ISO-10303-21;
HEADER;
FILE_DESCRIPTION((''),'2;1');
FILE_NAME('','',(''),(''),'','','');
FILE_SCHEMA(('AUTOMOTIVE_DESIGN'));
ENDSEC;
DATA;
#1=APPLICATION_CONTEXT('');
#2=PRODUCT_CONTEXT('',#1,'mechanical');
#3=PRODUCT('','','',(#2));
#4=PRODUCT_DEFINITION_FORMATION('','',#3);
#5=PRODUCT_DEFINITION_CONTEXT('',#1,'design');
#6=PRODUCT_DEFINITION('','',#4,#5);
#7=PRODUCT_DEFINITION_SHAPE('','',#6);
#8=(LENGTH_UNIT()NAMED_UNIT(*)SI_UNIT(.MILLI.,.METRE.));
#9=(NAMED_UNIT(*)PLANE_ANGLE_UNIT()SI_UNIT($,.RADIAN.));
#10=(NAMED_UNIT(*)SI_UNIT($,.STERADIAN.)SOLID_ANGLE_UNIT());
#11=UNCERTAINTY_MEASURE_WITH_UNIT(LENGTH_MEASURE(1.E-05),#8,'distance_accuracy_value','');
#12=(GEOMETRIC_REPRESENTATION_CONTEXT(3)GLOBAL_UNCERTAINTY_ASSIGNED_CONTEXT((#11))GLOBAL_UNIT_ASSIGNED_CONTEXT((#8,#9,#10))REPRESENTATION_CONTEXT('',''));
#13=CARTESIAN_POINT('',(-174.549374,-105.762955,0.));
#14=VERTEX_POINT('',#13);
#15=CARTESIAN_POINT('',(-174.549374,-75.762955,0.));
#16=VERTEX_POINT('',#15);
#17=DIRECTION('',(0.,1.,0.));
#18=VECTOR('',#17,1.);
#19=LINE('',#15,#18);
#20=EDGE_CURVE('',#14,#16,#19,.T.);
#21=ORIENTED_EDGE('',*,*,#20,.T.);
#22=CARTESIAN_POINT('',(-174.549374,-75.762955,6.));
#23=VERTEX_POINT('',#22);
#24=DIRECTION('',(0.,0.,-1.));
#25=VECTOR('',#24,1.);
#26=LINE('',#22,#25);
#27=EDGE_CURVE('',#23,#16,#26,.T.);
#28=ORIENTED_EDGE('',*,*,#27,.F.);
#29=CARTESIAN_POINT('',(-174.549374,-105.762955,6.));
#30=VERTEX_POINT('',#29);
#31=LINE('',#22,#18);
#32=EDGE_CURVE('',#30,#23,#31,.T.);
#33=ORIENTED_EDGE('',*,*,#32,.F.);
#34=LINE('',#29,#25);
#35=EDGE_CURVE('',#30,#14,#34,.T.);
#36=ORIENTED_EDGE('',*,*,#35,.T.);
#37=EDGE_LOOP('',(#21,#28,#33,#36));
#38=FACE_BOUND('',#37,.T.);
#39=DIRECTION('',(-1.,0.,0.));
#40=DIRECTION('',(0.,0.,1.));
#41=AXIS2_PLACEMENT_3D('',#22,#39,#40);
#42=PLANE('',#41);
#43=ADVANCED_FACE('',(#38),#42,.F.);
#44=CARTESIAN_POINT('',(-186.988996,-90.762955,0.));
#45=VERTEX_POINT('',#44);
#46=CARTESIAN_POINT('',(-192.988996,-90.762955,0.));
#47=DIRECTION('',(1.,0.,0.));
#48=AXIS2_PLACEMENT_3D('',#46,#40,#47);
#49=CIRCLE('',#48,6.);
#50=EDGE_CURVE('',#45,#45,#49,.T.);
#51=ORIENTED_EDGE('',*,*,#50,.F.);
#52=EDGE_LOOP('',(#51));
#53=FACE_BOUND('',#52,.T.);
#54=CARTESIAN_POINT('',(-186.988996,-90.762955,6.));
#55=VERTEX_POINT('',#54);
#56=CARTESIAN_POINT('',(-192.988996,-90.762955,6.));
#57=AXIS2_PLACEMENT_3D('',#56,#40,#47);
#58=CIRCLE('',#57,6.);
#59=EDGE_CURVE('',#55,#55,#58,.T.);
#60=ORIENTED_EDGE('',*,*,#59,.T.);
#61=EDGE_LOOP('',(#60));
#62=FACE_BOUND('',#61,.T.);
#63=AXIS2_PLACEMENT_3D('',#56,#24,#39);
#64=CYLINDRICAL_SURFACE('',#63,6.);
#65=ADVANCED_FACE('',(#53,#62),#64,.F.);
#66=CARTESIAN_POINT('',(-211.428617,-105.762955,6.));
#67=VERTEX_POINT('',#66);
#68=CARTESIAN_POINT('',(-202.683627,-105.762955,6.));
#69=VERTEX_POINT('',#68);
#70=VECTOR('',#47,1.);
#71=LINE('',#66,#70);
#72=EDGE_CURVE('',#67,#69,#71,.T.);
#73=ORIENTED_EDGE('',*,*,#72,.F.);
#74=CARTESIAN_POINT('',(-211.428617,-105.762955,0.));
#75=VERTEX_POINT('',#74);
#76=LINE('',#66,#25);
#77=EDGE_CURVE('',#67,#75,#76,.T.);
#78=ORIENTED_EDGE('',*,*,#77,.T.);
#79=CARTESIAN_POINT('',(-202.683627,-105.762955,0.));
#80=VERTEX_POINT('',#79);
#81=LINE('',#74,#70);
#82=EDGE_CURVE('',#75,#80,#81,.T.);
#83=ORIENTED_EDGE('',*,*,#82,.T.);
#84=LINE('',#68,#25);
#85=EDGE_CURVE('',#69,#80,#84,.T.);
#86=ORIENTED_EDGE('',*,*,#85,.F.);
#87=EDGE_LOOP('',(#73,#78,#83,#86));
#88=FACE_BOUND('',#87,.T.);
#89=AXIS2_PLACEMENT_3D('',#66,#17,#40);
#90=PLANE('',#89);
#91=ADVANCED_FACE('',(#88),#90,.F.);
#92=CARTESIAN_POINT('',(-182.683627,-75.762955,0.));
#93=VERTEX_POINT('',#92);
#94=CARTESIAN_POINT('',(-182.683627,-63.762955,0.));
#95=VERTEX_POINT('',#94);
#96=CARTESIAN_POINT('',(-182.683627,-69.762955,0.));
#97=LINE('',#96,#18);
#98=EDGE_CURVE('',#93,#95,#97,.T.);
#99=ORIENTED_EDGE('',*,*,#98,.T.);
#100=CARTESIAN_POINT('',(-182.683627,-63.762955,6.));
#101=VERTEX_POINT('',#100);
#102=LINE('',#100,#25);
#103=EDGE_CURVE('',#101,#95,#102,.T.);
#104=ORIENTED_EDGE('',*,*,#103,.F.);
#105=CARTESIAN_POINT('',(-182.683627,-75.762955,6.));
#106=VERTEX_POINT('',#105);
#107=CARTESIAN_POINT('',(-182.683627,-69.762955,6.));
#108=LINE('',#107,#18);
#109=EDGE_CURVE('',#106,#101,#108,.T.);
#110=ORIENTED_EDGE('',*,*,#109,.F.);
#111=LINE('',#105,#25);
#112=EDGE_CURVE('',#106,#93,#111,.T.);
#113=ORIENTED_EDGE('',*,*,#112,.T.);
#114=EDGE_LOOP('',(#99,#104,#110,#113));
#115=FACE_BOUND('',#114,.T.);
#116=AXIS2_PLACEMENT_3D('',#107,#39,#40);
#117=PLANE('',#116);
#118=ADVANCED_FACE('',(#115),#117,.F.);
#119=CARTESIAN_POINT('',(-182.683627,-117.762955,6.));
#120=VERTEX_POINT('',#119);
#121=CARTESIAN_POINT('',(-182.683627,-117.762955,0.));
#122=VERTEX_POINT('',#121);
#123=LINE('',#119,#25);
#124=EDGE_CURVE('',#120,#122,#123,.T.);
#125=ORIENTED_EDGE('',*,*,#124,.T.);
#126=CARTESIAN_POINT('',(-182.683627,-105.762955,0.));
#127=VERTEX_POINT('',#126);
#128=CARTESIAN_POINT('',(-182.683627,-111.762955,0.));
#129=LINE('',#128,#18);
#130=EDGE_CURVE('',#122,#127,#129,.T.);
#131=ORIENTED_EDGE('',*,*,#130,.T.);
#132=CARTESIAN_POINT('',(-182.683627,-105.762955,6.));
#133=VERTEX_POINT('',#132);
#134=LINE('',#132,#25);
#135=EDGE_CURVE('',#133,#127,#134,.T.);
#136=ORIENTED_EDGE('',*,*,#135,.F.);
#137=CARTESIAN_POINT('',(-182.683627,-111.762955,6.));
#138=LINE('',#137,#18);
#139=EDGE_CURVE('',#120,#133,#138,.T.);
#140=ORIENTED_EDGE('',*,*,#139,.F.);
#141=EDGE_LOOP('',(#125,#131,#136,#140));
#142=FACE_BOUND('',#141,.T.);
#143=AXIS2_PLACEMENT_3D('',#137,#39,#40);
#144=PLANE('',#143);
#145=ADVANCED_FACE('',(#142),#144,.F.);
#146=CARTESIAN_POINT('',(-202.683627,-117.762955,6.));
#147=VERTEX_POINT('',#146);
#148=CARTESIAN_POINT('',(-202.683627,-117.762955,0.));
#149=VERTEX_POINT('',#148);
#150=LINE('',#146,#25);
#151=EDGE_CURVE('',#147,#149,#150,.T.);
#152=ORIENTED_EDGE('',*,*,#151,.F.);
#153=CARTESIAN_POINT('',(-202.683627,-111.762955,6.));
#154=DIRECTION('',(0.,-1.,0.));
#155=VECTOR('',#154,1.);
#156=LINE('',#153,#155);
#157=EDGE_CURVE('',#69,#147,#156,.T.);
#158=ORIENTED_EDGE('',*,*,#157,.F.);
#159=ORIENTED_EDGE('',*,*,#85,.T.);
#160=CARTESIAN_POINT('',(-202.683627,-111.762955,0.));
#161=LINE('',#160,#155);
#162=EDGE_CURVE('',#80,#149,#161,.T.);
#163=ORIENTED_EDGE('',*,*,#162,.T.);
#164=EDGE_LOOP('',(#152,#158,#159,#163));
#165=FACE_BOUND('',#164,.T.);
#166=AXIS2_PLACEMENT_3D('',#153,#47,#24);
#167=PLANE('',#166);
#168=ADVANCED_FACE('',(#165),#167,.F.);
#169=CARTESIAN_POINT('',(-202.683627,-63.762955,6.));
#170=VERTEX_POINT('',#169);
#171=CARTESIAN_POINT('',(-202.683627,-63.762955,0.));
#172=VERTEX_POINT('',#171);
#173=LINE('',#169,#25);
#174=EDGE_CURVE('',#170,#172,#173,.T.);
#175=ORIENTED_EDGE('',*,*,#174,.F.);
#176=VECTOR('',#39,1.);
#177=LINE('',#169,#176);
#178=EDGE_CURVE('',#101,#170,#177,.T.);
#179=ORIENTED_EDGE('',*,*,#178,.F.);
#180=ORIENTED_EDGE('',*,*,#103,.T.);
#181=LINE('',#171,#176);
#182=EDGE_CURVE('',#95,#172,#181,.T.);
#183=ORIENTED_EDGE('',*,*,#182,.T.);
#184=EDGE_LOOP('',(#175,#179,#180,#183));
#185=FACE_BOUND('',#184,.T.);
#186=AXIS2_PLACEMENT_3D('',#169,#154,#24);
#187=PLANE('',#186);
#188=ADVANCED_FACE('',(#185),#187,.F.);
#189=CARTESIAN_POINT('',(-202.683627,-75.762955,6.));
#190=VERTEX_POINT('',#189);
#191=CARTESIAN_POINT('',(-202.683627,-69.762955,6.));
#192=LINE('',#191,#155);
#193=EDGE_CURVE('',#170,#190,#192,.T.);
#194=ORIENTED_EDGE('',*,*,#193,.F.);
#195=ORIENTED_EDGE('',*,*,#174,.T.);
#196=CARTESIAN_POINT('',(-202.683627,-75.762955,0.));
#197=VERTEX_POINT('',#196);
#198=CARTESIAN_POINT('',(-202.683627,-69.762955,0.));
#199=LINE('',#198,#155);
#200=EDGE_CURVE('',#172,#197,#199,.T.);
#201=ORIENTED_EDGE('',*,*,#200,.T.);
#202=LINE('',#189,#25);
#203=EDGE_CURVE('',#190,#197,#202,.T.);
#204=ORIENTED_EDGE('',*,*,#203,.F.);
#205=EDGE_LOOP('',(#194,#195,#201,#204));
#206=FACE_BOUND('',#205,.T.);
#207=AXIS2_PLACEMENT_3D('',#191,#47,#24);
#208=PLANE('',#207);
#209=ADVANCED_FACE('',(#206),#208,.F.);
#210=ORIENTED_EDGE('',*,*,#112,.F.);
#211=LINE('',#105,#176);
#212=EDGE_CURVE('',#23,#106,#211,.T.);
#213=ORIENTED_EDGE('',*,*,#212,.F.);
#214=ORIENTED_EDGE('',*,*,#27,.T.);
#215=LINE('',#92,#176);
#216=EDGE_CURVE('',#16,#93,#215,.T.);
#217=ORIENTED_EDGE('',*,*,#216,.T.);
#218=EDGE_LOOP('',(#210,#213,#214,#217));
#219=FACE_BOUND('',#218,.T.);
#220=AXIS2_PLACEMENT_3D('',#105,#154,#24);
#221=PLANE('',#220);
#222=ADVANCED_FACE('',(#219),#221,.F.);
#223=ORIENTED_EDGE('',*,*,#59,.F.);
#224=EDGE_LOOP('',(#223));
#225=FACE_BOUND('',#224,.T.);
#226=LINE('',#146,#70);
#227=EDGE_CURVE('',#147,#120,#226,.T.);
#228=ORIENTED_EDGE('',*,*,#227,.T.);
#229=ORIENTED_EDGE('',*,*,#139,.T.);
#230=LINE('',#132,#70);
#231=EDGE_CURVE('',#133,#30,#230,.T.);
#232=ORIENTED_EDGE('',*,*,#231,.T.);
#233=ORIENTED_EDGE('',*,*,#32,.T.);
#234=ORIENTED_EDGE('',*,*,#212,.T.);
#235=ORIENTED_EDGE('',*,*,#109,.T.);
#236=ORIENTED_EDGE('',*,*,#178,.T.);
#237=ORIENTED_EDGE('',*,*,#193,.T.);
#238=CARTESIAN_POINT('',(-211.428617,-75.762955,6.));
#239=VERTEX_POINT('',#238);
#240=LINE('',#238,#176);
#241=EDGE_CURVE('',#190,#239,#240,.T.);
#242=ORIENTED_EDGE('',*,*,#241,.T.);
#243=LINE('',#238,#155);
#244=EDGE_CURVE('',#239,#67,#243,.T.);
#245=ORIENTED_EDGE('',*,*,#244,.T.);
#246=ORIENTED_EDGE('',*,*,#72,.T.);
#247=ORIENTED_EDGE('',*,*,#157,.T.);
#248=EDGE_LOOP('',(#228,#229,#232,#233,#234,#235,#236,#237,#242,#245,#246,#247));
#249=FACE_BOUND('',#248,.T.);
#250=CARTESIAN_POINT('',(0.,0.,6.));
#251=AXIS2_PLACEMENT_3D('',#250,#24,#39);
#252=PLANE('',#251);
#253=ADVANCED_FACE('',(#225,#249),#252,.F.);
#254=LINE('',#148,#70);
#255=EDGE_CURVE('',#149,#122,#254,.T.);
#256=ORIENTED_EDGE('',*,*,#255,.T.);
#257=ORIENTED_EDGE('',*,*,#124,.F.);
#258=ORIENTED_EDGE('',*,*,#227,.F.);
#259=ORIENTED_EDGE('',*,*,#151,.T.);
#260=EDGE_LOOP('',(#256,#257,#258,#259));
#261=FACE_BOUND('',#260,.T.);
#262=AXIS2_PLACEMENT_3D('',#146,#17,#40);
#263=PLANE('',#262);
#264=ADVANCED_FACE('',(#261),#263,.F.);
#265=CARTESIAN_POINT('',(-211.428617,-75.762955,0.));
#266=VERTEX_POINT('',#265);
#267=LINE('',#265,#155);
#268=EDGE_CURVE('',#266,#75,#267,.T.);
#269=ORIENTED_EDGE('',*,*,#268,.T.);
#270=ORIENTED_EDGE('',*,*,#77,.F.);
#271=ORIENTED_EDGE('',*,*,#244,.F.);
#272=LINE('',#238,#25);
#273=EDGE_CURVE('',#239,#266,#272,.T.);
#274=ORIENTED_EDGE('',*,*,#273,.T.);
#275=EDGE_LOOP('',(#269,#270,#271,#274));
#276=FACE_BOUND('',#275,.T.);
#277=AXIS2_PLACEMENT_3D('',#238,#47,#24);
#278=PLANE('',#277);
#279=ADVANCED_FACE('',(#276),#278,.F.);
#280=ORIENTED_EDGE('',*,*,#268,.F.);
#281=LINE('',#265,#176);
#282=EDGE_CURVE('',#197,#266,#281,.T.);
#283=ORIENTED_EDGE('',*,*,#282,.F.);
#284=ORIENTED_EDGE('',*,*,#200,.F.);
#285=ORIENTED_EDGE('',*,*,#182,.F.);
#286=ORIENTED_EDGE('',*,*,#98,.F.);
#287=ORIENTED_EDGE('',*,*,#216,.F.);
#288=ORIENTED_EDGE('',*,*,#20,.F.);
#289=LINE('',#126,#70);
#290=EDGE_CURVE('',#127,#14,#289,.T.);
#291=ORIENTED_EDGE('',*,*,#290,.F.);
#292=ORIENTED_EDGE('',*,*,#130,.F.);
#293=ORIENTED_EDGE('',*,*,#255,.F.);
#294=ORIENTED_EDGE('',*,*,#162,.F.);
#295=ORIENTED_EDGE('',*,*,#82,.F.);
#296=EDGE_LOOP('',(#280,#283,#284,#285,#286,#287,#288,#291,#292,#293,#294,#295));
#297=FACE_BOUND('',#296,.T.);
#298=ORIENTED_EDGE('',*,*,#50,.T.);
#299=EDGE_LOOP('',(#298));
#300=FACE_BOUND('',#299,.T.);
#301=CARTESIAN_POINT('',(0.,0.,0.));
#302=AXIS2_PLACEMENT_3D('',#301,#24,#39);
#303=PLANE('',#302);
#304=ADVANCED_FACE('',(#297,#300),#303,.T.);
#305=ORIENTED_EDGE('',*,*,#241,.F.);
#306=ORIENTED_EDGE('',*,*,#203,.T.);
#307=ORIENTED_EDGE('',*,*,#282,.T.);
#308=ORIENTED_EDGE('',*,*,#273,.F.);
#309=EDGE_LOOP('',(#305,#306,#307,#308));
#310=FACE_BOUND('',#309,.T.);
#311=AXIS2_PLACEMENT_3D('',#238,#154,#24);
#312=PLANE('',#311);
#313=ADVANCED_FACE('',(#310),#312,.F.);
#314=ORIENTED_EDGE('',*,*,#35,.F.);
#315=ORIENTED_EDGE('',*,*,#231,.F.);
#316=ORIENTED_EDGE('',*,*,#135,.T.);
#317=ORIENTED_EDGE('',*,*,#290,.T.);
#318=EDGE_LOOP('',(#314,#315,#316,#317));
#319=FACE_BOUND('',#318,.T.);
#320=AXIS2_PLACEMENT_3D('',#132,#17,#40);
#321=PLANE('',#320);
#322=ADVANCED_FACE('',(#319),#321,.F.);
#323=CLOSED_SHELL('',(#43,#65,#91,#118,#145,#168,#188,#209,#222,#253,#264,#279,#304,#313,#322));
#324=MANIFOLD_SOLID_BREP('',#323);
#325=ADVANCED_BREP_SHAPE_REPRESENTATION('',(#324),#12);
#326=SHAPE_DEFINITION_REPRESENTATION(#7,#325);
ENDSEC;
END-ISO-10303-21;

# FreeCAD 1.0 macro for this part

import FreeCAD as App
import Part
import Sketcher
from FreeCAD import Vector


def add_polygon(sketch, points):
    """Adds a closed chain of lines whose ends are joined by coincident constraints."""
    first, n = sketch.GeometryCount, len(points)
    for a, b in zip(points, points[1:] + points[:1]):
        sketch.addGeometry(Part.LineSegment(App.Vector(*a, 0), App.Vector(*b, 0)), False)
    for i in range(n):
        sketch.addConstraint(Sketcher.Constraint("Coincident", first + i, 2, first + (i + 1) % n, 1))

doc = App.newDocument("Part")
body = doc.addObject("PartDesign::Body", "Body")

# Sketch on XY plane
sketch1 = doc.addObject("Sketcher::SketchObject", "Sketch")
body.addObject(sketch1)
sketch1.AttachmentSupport = (doc.XY_Plane, [""])
sketch1.MapMode = "FlatFace"
add_polygon(sketch1, [(-211, -76), (-211, -106), (-203, -106), (-203, -118), (-183, -118), (-183, -106), (-175, -106), (-175, -76), (-183, -76), (-183, -64), (-203, -64), (-203, -76)])  # lines 0-11
sketch1.addGeometry(Part.Circle(Vector(-193, -91, 0), Vector(0, 0, 1), 6), False)  # 12
sketch1.addConstraint(Sketcher.Constraint("Vertical", 0))
sketch1.addConstraint(Sketcher.Constraint("Horizontal", 1))
sketch1.addConstraint(Sketcher.Constraint("Vertical", 2))
sketch1.addConstraint(Sketcher.Constraint("Horizontal", 3))
sketch1.addConstraint(Sketcher.Constraint("Vertical", 4))
sketch1.addConstraint(Sketcher.Constraint("Horizontal", 5))
sketch1.addConstraint(Sketcher.Constraint("Vertical", 6))
sketch1.addConstraint(Sketcher.Constraint("Horizontal", 7))
sketch1.addConstraint(Sketcher.Constraint("Vertical", 8))
sketch1.addConstraint(Sketcher.Constraint("Horizontal", 9))
sketch1.addConstraint(Sketcher.Constraint("Vertical", 10))
sketch1.addConstraint(Sketcher.Constraint("Horizontal", 11))
sketch1.addConstraint(Sketcher.Constraint("Horizontal", 1, 2, 4, 2))
sketch1.addConstraint(Sketcher.Constraint("Horizontal", 7, 2, 10, 2))
sketch1.addConstraint(Sketcher.Constraint("Vertical", 4, 2, 7, 2))
sketch1.addConstraint(Sketcher.Constraint("Vertical", 2, 2, 9, 2))
sketch1.addConstraint(Sketcher.Constraint("Equal", 4, 8))
sketch1.addConstraint(Sketcher.Constraint("Diameter", 12, 12.0))
sketch1.addConstraint(Sketcher.Constraint("DistanceX", 3, 1, 3, 2, 20.0))
sketch1.addConstraint(Sketcher.Constraint("DistanceY", 0, 2, 0, 1, 30.0))
sketch1.addConstraint(Sketcher.Constraint("DistanceY", 2, 2, 2, 1, 12.0))
sketch1.addConstraint(Sketcher.Constraint("DistanceY", 0, 2, 12, 3, 15.0))
sketch1.addConstraint(Sketcher.Constraint("DistanceX", 1, 1, 1, 2, 8.74499))
sketch1.addConstraint(Sketcher.Constraint("DistanceX", 5, 1, 5, 2, 8.134253))
sketch1.addConstraint(Sketcher.Constraint("DistanceX", 0, 2, 12, 3, 18.439622))
sketch1.addConstraint(Sketcher.Constraint("DistanceX", 12, 3, -1, 1, 192.988996))
sketch1.addConstraint(Sketcher.Constraint("DistanceY", 12, 3, -1, 1, 90.762955))
pad1 = doc.addObject("PartDesign::Pad", "Pad")
body.addObject(pad1)
pad1.Profile = sketch1
pad1.Length = 6

doc.recompute()
